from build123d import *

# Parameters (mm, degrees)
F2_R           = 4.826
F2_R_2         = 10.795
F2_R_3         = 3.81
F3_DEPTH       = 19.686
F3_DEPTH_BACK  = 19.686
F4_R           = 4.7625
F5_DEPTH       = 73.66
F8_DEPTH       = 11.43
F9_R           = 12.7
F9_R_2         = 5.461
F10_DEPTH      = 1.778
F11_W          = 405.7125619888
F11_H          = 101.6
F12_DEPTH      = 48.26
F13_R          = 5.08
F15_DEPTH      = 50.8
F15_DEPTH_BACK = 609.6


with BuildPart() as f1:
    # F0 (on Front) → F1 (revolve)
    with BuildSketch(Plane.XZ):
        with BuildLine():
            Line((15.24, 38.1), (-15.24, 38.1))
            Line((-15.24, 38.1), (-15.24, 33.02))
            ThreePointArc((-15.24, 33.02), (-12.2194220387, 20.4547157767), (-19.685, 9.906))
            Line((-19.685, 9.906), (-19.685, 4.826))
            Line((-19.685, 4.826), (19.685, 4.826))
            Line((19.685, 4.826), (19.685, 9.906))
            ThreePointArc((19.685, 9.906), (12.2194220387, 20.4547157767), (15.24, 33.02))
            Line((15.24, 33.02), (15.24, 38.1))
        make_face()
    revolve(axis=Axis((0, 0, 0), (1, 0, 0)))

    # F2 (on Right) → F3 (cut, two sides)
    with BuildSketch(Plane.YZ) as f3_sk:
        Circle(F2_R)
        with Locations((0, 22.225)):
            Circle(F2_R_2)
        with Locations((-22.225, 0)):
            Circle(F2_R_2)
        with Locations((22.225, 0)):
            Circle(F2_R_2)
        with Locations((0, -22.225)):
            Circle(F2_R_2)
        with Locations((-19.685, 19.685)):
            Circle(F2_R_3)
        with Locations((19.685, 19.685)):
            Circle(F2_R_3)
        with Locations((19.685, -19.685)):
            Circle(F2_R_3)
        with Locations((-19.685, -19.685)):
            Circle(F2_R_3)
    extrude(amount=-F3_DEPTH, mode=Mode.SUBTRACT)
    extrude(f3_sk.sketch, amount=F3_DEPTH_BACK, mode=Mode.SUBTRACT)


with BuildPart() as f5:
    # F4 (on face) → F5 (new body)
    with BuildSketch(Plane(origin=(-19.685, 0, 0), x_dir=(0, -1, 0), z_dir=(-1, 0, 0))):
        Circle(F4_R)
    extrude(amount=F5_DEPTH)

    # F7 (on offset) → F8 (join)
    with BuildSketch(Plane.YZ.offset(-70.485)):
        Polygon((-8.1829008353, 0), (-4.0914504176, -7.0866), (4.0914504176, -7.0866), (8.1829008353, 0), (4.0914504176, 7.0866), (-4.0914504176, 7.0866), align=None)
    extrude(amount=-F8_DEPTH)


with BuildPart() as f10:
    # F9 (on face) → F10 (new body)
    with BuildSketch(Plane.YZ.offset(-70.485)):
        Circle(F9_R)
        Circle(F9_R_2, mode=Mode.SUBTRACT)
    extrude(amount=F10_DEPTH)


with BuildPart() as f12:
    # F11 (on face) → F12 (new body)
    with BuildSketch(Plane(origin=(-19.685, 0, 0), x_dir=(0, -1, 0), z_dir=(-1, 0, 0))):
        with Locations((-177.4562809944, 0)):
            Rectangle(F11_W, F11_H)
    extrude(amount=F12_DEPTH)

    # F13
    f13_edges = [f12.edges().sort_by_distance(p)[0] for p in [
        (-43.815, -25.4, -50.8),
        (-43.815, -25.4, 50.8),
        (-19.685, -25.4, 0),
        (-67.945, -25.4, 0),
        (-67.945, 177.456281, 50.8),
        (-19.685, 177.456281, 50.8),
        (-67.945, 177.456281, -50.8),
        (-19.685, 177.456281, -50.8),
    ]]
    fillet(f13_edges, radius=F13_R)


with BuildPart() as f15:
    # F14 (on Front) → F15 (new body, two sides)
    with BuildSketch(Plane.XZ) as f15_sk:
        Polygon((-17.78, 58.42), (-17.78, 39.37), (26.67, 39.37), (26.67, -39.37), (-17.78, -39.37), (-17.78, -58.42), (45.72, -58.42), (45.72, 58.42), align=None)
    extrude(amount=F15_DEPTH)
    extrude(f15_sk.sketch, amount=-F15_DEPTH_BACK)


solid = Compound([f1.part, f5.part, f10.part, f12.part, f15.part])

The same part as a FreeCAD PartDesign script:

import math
import FreeCAD as App
import Part
import Sketcher

V = App.Vector
Q = App.Units.Quantity


def edges_at(feature, points):
    """Names of the edges that pass closest to the given points."""
    edges = feature.Shape.Edges
    near = lambda p: min(range(len(edges)), key=lambda i: edges[i].distToShape(Part.Vertex(*p))[0])
    return sorted({f"Edge{near(p) + 1}" for p in points})


def add_polygon(sketch, points):
    """Adds a closed chain of lines whose ends are joined by coincident constraints."""
    first, n = sketch.GeometryCount, len(points)
    for a, b in zip(points, points[1:] + points[:1]):
        sketch.addGeometry(Part.LineSegment(App.Vector(*a, 0), App.Vector(*b, 0)), False)
    for i in range(n):
        sketch.addConstraint(Sketcher.Constraint("Coincident", first + i, 2, first + (i + 1) % n, 1))

doc = App.newDocument("Part")
body = doc.addObject("PartDesign::Body", "Body")

# Sketch on XZ plane
sketch1 = body.newObject("Sketcher::SketchObject", "Sketch")
sketch1.AttachmentSupport = (doc.getObject("XZ_Plane"), [""])
sketch1.MapMode = "FlatFace"
sketch1.addGeometry([
    Part.LineSegment(V(15, 38, 0), V(-15, 38, 0)),  # 0
    Part.LineSegment(V(-15, 38, 0), V(-15, 33, 0)),  # 1
    Part.ArcOfCircle(Part.Circle(V(-28, 23, 0), V(0, 0, 1), 16), math.radians(-60), math.radians(38)),  # 2
    Part.LineSegment(V(-20, 10, 0), V(-20, 5, 0)),  # 3
    Part.LineSegment(V(-20, 5, 0), V(20, 5, 0)),  # 4
    Part.LineSegment(V(20, 5, 0), V(20, 10, 0)),  # 5
    Part.ArcOfCircle(Part.Circle(V(28, 23, 0), V(0, 0, 1), 16), math.radians(142), math.radians(240)),  # 6
    Part.LineSegment(V(15, 33, 0), V(15, 38, 0)),  # 7
], False)
sketch1.addConstraint([
    Sketcher.Constraint("Coincident", 0, 2, 1, 1),
    Sketcher.Constraint("Coincident", 1, 2, 2, 2),
    Sketcher.Constraint("Coincident", 2, 1, 3, 1),
    Sketcher.Constraint("Coincident", 3, 2, 4, 1),
    Sketcher.Constraint("Coincident", 4, 2, 5, 1),
    Sketcher.Constraint("Coincident", 5, 2, 6, 2),
    Sketcher.Constraint("Coincident", 6, 1, 7, 1),
    Sketcher.Constraint("Coincident", 7, 2, 0, 1),
    Sketcher.Constraint("Horizontal", 0),
    Sketcher.Constraint("Vertical", 1),
    Sketcher.Constraint("Vertical", 3),
    Sketcher.Constraint("Horizontal", 4),
    Sketcher.Constraint("Vertical", 5),
    Sketcher.Constraint("Vertical", 7),
    Sketcher.Constraint("Equal", 2, 6),
    Sketcher.Constraint("Symmetric", 2, 3, 6, 3, -2),
    Sketcher.Constraint("Horizontal", 2, 1, 5, 2),
    Sketcher.Constraint("Horizontal", 1, 2, 6, 1),
    Sketcher.Constraint("Equal", 1, 3),
    Sketcher.Constraint("DistanceX", 0, 2, 0, 1, Q("1.2 in")),
    Sketcher.Constraint("DistanceY", 1, 2, 1, 1, Q("0.2 in")),
    Sketcher.Constraint("DistanceX", 4, 1, 4, 2, Q("1.55 in")),
    Sketcher.Constraint("DistanceY", -1, 1, 0, 2, Q("1.5 in")),
    Sketcher.Constraint("DistanceY", -1, 1, 2, 1, Q("0.39 in")),
    Sketcher.Constraint("Radius", 2, 15.640159),
])
revolution = body.newObject("PartDesign::Revolution", "Revolution")
revolution.Profile = sketch1
revolution.ReferenceAxis = (sketch1, ["H_Axis"])
revolution.Angle = 360

# Sketch on YZ plane
sketch2 = body.newObject("Sketcher::SketchObject", "Sketch001")
sketch2.AttachmentSupport = (doc.getObject("YZ_Plane"), [""])
sketch2.MapMode = "FlatFace"
sketch2.addGeometry([
    Part.Circle(V(0, 0, 0), V(0, 0, 1), 4.8),  # 0
    Part.Circle(V(0, 22.2, 0), V(0, 0, 1), 10.8),  # 1
    Part.Circle(V(-22.2, 0, 0), V(0, 0, 1), 10.8),  # 2
    Part.Circle(V(22.2, 0, 0), V(0, 0, 1), 10.8),  # 3
    Part.Circle(V(0, -22.2, 0), V(0, 0, 1), 10.8),  # 4
    Part.Circle(V(-19.7, 19.7, 0), V(0, 0, 1), 3.8),  # 5
    Part.Circle(V(19.7, 19.7, 0), V(0, 0, 1), 3.8),  # 6
    Part.Circle(V(19.7, -19.7, 0), V(0, 0, 1), 3.8),  # 7
    Part.Circle(V(-19.7, -19.7, 0), V(0, 0, 1), 3.8),  # 8
], False)
sketch2.addConstraint([
    Sketcher.Constraint("Coincident", 0, 3, -1, 1),
    Sketcher.Constraint("Equal", 1, 2),
    Sketcher.Constraint("Equal", 2, 3),
    Sketcher.Constraint("Equal", 3, 4),
    Sketcher.Constraint("Equal", 5, 6),
    Sketcher.Constraint("Equal", 6, 7),
    Sketcher.Constraint("Equal", 7, 8),
    Sketcher.Constraint("Symmetric", 2, 3, 3, 3, -1, 1),
    Sketcher.Constraint("Symmetric", 1, 3, 4, 3, -1, 1),
    Sketcher.Constraint("Symmetric", 5, 3, 7, 3, -1, 1),
    Sketcher.Constraint("Symmetric", 6, 3, 8, 3, -1, 1),
    Sketcher.Constraint("Symmetric", 5, 3, 6, 3, -2),
    Sketcher.Constraint("PointOnObject", 1, 3, -2),
    Sketcher.Constraint("PointOnObject", 2, 3, -1),
    Sketcher.Constraint("Diameter", 5, Q("0.3 in")),
    Sketcher.Constraint("Diameter", 0, Q("0.38 in")),
    Sketcher.Constraint("Diameter", 1, Q("0.85 in")),
    Sketcher.Constraint("DistanceY", 5, 3, 1, 3, Q("0.1 in")),
    Sketcher.Constraint("DistanceX", 2, 3, 5, 3, Q("0.1 in")),
    Sketcher.Constraint("DistanceX", 2, 3, 3, 3, Q("1.75 in")),
    Sketcher.Constraint("DistanceY", 4, 3, 1, 3, Q("1.75 in")),
])
pocket1 = body.newObject("PartDesign::Pocket", "Pocket")
pocket1.Profile = sketch2
pocket1.Type = "ThroughAll"
pocket1.Midplane = True
body2 = doc.addObject("PartDesign::Body", "Body001")

# Sketch on YZ plane
sketch3 = body2.newObject("Sketcher::SketchObject", "Sketch002")
sketch3.AttachmentSupport = (doc.getObject("YZ_Plane001"), [""])
sketch3.MapMode = "FlatFace"
sketch3.AttachmentOffset = App.Placement(V(0, 0, -0.775 * 25.4), App.Rotation())
sketch3.addGeometry(Part.Circle(V(0, 0, 0), V(0, 0, 1), 4.8), False)
sketch3.addConstraint([
    Sketcher.Constraint("Coincident", 0, 3, -1, 1),
    Sketcher.Constraint("Diameter", 0, Q("0.375 in")),
])
pad1 = body2.newObject("PartDesign::Pad", "Pad")
pad1.Profile = sketch3
pad1.Length = Q("2.9 in")
pad1.Reversed = True

# Sketch on YZ plane
sketch4 = body2.newObject("Sketcher::SketchObject", "Sketch003")
sketch4.AttachmentSupport = (doc.getObject("YZ_Plane001"), [""])
sketch4.MapMode = "FlatFace"
sketch4.AttachmentOffset = App.Placement(V(0, 0, -2.775 * 25.4), App.Rotation())
add_polygon(sketch4, [(-8, 0), (-4, -7), (4, -7), (8, 0), (4, 7), (-4, 7)])  # lines 0-5
sketch4.addConstraint([
    Sketcher.Constraint("Horizontal", 1),
    Sketcher.Constraint("Horizontal", 4),
    Sketcher.Constraint("Symmetric", 0, 2, 3, 2, -1, 1),
    Sketcher.Constraint("Symmetric", 2, 2, 5, 2, -1, 1),
    Sketcher.Constraint("PointOnObject", 2, 2, -1),
    Sketcher.Constraint("Parallel", 2, 5),
    Sketcher.Constraint("Vertical", 1, 2, 3, 2),
    Sketcher.Constraint("Angle", 0, Q("-60 deg")),
    Sketcher.Constraint("DistanceY", 0, 2, -1, 1, Q("0.279 in")),
    Sketcher.Constraint("DistanceX", 1, 1, 1, 2, 8.182901),
])
pad2 = body2.newObject("PartDesign::Pad", "Pad001")
pad2.Profile = sketch4
pad2.Length = Q("0.45 in")
pad2.Reversed = True
body3 = doc.addObject("PartDesign::Body", "Body002")

# Sketch on YZ plane
sketch5 = body3.newObject("Sketcher::SketchObject", "Sketch004")
sketch5.AttachmentSupport = (doc.getObject("YZ_Plane002"), [""])
sketch5.MapMode = "FlatFace"
sketch5.AttachmentOffset = App.Placement(V(0, 0, -2.775 * 25.4), App.Rotation())
sketch5.addGeometry([
    Part.Circle(V(0, 0, 0), V(0, 0, 1), 13),
    Part.Circle(V(0, 0, 0), V(0, 0, 1), 5),
], False)
sketch5.addConstraint([
    Sketcher.Constraint("Coincident", 0, 3, -1, 1),
    Sketcher.Constraint("Coincident", 1, 3, -1, 1),
    Sketcher.Constraint("Diameter", 0, Q("1 in")),
    Sketcher.Constraint("Diameter", 1, Q("0.43 in")),
])
pad3 = body3.newObject("PartDesign::Pad", "Pad002")
pad3.Profile = sketch5
pad3.Length = Q("0.07 in")
body4 = doc.addObject("PartDesign::Body", "Body003")

# Sketch on YZ plane
sketch6 = body4.newObject("Sketcher::SketchObject", "Sketch005")
sketch6.AttachmentSupport = (doc.getObject("YZ_Plane003"), [""])
sketch6.MapMode = "FlatFace"
sketch6.AttachmentOffset = App.Placement(V(0, 0, -0.775 * 25.4), App.Rotation())
add_polygon(sketch6, [(380, 51), (380, -51), (-25, -51), (-25, 51)])  # lines 0-3
sketch6.addConstraint([
    Sketcher.Constraint("Vertical", 0),
    Sketcher.Constraint("Horizontal", 1),
    Sketcher.Constraint("Vertical", 2),
    Sketcher.Constraint("Horizontal", 3),
    Sketcher.Constraint("DistanceY", 0, 2, 0, 1, Q("4 in")),
    Sketcher.Constraint("DistanceY", 0, 2, -1, 1, Q("2 in")),
    Sketcher.Constraint("DistanceX", 1, 2, -1, 1, Q("1 in")),
    Sketcher.Constraint("DistanceX", 1, 2, 1, 1, 405.712562),
])
pad4 = body4.newObject("PartDesign::Pad", "Pad003")
pad4.Profile = sketch6
pad4.Length = Q("1.9 in")
pad4.Reversed = True
doc.recompute()

fillet = body4.newObject("PartDesign::Fillet", "Fillet")
fillet.Base = (pad4, edges_at(pad4, [
    (-43.815, -25.4, -50.8),
    (-43.815, -25.4, 50.8),
    (-19.685, -25.4, 0),
    (-67.945, -25.4, 0),
    (-67.945, 177.456, 50.8),
    (-19.685, 177.456, 50.8),
    (-67.945, 177.456, -50.8),
    (-19.685, 177.456, -50.8),
]))
fillet.Radius = Q("0.2 in")
body5 = doc.addObject("PartDesign::Body", "Body004")

# Sketch on XZ plane
sketch7 = body5.newObject("Sketcher::SketchObject", "Sketch006")
sketch7.AttachmentSupport = (doc.getObject("XZ_Plane004"), [""])
sketch7.MapMode = "FlatFace"
add_polygon(sketch7, [(-18, 58), (-18, 39), (27, 39), (27, -39), (-18, -39), (-18, -58), (46, -58), (46, 58)])  # lines 0-7
sketch7.addConstraint([
    Sketcher.Constraint("Vertical", 0),
    Sketcher.Constraint("Horizontal", 1),
    Sketcher.Constraint("Vertical", 2),
    Sketcher.Constraint("Horizontal", 3),
    Sketcher.Constraint("Vertical", 4),
    Sketcher.Constraint("Horizontal", 5),
    Sketcher.Constraint("Vertical", 6),
    Sketcher.Constraint("Horizontal", 7),
    Sketcher.Constraint("Symmetric", 0, 2, 3, 2, -1),
    Sketcher.Constraint("Equal", 0, 4),
    Sketcher.Constraint("DistanceX", 5, 1, 5, 2, Q("2.5 in")),
    Sketcher.Constraint("DistanceY", 2, 2, 2, 1, Q("3.1 in")),
    Sketcher.Constraint("DistanceY", 6, 1, 6, 2, Q("4.6 in")),
    Sketcher.Constraint("DistanceX", 1, 1, 1, 2, Q("1.75 in")),
    Sketcher.Constraint("DistanceX", 0, 2, -1, 1, Q("0.7 in")),
])
pad5 = body5.newObject("PartDesign::Pad", "Pad004")
pad5.Profile = sketch7
pad5.Type = "TwoLengths"
pad5.Length = Q("2 in")
pad5.Length2 = Q("24 in")

doc.recompute()
